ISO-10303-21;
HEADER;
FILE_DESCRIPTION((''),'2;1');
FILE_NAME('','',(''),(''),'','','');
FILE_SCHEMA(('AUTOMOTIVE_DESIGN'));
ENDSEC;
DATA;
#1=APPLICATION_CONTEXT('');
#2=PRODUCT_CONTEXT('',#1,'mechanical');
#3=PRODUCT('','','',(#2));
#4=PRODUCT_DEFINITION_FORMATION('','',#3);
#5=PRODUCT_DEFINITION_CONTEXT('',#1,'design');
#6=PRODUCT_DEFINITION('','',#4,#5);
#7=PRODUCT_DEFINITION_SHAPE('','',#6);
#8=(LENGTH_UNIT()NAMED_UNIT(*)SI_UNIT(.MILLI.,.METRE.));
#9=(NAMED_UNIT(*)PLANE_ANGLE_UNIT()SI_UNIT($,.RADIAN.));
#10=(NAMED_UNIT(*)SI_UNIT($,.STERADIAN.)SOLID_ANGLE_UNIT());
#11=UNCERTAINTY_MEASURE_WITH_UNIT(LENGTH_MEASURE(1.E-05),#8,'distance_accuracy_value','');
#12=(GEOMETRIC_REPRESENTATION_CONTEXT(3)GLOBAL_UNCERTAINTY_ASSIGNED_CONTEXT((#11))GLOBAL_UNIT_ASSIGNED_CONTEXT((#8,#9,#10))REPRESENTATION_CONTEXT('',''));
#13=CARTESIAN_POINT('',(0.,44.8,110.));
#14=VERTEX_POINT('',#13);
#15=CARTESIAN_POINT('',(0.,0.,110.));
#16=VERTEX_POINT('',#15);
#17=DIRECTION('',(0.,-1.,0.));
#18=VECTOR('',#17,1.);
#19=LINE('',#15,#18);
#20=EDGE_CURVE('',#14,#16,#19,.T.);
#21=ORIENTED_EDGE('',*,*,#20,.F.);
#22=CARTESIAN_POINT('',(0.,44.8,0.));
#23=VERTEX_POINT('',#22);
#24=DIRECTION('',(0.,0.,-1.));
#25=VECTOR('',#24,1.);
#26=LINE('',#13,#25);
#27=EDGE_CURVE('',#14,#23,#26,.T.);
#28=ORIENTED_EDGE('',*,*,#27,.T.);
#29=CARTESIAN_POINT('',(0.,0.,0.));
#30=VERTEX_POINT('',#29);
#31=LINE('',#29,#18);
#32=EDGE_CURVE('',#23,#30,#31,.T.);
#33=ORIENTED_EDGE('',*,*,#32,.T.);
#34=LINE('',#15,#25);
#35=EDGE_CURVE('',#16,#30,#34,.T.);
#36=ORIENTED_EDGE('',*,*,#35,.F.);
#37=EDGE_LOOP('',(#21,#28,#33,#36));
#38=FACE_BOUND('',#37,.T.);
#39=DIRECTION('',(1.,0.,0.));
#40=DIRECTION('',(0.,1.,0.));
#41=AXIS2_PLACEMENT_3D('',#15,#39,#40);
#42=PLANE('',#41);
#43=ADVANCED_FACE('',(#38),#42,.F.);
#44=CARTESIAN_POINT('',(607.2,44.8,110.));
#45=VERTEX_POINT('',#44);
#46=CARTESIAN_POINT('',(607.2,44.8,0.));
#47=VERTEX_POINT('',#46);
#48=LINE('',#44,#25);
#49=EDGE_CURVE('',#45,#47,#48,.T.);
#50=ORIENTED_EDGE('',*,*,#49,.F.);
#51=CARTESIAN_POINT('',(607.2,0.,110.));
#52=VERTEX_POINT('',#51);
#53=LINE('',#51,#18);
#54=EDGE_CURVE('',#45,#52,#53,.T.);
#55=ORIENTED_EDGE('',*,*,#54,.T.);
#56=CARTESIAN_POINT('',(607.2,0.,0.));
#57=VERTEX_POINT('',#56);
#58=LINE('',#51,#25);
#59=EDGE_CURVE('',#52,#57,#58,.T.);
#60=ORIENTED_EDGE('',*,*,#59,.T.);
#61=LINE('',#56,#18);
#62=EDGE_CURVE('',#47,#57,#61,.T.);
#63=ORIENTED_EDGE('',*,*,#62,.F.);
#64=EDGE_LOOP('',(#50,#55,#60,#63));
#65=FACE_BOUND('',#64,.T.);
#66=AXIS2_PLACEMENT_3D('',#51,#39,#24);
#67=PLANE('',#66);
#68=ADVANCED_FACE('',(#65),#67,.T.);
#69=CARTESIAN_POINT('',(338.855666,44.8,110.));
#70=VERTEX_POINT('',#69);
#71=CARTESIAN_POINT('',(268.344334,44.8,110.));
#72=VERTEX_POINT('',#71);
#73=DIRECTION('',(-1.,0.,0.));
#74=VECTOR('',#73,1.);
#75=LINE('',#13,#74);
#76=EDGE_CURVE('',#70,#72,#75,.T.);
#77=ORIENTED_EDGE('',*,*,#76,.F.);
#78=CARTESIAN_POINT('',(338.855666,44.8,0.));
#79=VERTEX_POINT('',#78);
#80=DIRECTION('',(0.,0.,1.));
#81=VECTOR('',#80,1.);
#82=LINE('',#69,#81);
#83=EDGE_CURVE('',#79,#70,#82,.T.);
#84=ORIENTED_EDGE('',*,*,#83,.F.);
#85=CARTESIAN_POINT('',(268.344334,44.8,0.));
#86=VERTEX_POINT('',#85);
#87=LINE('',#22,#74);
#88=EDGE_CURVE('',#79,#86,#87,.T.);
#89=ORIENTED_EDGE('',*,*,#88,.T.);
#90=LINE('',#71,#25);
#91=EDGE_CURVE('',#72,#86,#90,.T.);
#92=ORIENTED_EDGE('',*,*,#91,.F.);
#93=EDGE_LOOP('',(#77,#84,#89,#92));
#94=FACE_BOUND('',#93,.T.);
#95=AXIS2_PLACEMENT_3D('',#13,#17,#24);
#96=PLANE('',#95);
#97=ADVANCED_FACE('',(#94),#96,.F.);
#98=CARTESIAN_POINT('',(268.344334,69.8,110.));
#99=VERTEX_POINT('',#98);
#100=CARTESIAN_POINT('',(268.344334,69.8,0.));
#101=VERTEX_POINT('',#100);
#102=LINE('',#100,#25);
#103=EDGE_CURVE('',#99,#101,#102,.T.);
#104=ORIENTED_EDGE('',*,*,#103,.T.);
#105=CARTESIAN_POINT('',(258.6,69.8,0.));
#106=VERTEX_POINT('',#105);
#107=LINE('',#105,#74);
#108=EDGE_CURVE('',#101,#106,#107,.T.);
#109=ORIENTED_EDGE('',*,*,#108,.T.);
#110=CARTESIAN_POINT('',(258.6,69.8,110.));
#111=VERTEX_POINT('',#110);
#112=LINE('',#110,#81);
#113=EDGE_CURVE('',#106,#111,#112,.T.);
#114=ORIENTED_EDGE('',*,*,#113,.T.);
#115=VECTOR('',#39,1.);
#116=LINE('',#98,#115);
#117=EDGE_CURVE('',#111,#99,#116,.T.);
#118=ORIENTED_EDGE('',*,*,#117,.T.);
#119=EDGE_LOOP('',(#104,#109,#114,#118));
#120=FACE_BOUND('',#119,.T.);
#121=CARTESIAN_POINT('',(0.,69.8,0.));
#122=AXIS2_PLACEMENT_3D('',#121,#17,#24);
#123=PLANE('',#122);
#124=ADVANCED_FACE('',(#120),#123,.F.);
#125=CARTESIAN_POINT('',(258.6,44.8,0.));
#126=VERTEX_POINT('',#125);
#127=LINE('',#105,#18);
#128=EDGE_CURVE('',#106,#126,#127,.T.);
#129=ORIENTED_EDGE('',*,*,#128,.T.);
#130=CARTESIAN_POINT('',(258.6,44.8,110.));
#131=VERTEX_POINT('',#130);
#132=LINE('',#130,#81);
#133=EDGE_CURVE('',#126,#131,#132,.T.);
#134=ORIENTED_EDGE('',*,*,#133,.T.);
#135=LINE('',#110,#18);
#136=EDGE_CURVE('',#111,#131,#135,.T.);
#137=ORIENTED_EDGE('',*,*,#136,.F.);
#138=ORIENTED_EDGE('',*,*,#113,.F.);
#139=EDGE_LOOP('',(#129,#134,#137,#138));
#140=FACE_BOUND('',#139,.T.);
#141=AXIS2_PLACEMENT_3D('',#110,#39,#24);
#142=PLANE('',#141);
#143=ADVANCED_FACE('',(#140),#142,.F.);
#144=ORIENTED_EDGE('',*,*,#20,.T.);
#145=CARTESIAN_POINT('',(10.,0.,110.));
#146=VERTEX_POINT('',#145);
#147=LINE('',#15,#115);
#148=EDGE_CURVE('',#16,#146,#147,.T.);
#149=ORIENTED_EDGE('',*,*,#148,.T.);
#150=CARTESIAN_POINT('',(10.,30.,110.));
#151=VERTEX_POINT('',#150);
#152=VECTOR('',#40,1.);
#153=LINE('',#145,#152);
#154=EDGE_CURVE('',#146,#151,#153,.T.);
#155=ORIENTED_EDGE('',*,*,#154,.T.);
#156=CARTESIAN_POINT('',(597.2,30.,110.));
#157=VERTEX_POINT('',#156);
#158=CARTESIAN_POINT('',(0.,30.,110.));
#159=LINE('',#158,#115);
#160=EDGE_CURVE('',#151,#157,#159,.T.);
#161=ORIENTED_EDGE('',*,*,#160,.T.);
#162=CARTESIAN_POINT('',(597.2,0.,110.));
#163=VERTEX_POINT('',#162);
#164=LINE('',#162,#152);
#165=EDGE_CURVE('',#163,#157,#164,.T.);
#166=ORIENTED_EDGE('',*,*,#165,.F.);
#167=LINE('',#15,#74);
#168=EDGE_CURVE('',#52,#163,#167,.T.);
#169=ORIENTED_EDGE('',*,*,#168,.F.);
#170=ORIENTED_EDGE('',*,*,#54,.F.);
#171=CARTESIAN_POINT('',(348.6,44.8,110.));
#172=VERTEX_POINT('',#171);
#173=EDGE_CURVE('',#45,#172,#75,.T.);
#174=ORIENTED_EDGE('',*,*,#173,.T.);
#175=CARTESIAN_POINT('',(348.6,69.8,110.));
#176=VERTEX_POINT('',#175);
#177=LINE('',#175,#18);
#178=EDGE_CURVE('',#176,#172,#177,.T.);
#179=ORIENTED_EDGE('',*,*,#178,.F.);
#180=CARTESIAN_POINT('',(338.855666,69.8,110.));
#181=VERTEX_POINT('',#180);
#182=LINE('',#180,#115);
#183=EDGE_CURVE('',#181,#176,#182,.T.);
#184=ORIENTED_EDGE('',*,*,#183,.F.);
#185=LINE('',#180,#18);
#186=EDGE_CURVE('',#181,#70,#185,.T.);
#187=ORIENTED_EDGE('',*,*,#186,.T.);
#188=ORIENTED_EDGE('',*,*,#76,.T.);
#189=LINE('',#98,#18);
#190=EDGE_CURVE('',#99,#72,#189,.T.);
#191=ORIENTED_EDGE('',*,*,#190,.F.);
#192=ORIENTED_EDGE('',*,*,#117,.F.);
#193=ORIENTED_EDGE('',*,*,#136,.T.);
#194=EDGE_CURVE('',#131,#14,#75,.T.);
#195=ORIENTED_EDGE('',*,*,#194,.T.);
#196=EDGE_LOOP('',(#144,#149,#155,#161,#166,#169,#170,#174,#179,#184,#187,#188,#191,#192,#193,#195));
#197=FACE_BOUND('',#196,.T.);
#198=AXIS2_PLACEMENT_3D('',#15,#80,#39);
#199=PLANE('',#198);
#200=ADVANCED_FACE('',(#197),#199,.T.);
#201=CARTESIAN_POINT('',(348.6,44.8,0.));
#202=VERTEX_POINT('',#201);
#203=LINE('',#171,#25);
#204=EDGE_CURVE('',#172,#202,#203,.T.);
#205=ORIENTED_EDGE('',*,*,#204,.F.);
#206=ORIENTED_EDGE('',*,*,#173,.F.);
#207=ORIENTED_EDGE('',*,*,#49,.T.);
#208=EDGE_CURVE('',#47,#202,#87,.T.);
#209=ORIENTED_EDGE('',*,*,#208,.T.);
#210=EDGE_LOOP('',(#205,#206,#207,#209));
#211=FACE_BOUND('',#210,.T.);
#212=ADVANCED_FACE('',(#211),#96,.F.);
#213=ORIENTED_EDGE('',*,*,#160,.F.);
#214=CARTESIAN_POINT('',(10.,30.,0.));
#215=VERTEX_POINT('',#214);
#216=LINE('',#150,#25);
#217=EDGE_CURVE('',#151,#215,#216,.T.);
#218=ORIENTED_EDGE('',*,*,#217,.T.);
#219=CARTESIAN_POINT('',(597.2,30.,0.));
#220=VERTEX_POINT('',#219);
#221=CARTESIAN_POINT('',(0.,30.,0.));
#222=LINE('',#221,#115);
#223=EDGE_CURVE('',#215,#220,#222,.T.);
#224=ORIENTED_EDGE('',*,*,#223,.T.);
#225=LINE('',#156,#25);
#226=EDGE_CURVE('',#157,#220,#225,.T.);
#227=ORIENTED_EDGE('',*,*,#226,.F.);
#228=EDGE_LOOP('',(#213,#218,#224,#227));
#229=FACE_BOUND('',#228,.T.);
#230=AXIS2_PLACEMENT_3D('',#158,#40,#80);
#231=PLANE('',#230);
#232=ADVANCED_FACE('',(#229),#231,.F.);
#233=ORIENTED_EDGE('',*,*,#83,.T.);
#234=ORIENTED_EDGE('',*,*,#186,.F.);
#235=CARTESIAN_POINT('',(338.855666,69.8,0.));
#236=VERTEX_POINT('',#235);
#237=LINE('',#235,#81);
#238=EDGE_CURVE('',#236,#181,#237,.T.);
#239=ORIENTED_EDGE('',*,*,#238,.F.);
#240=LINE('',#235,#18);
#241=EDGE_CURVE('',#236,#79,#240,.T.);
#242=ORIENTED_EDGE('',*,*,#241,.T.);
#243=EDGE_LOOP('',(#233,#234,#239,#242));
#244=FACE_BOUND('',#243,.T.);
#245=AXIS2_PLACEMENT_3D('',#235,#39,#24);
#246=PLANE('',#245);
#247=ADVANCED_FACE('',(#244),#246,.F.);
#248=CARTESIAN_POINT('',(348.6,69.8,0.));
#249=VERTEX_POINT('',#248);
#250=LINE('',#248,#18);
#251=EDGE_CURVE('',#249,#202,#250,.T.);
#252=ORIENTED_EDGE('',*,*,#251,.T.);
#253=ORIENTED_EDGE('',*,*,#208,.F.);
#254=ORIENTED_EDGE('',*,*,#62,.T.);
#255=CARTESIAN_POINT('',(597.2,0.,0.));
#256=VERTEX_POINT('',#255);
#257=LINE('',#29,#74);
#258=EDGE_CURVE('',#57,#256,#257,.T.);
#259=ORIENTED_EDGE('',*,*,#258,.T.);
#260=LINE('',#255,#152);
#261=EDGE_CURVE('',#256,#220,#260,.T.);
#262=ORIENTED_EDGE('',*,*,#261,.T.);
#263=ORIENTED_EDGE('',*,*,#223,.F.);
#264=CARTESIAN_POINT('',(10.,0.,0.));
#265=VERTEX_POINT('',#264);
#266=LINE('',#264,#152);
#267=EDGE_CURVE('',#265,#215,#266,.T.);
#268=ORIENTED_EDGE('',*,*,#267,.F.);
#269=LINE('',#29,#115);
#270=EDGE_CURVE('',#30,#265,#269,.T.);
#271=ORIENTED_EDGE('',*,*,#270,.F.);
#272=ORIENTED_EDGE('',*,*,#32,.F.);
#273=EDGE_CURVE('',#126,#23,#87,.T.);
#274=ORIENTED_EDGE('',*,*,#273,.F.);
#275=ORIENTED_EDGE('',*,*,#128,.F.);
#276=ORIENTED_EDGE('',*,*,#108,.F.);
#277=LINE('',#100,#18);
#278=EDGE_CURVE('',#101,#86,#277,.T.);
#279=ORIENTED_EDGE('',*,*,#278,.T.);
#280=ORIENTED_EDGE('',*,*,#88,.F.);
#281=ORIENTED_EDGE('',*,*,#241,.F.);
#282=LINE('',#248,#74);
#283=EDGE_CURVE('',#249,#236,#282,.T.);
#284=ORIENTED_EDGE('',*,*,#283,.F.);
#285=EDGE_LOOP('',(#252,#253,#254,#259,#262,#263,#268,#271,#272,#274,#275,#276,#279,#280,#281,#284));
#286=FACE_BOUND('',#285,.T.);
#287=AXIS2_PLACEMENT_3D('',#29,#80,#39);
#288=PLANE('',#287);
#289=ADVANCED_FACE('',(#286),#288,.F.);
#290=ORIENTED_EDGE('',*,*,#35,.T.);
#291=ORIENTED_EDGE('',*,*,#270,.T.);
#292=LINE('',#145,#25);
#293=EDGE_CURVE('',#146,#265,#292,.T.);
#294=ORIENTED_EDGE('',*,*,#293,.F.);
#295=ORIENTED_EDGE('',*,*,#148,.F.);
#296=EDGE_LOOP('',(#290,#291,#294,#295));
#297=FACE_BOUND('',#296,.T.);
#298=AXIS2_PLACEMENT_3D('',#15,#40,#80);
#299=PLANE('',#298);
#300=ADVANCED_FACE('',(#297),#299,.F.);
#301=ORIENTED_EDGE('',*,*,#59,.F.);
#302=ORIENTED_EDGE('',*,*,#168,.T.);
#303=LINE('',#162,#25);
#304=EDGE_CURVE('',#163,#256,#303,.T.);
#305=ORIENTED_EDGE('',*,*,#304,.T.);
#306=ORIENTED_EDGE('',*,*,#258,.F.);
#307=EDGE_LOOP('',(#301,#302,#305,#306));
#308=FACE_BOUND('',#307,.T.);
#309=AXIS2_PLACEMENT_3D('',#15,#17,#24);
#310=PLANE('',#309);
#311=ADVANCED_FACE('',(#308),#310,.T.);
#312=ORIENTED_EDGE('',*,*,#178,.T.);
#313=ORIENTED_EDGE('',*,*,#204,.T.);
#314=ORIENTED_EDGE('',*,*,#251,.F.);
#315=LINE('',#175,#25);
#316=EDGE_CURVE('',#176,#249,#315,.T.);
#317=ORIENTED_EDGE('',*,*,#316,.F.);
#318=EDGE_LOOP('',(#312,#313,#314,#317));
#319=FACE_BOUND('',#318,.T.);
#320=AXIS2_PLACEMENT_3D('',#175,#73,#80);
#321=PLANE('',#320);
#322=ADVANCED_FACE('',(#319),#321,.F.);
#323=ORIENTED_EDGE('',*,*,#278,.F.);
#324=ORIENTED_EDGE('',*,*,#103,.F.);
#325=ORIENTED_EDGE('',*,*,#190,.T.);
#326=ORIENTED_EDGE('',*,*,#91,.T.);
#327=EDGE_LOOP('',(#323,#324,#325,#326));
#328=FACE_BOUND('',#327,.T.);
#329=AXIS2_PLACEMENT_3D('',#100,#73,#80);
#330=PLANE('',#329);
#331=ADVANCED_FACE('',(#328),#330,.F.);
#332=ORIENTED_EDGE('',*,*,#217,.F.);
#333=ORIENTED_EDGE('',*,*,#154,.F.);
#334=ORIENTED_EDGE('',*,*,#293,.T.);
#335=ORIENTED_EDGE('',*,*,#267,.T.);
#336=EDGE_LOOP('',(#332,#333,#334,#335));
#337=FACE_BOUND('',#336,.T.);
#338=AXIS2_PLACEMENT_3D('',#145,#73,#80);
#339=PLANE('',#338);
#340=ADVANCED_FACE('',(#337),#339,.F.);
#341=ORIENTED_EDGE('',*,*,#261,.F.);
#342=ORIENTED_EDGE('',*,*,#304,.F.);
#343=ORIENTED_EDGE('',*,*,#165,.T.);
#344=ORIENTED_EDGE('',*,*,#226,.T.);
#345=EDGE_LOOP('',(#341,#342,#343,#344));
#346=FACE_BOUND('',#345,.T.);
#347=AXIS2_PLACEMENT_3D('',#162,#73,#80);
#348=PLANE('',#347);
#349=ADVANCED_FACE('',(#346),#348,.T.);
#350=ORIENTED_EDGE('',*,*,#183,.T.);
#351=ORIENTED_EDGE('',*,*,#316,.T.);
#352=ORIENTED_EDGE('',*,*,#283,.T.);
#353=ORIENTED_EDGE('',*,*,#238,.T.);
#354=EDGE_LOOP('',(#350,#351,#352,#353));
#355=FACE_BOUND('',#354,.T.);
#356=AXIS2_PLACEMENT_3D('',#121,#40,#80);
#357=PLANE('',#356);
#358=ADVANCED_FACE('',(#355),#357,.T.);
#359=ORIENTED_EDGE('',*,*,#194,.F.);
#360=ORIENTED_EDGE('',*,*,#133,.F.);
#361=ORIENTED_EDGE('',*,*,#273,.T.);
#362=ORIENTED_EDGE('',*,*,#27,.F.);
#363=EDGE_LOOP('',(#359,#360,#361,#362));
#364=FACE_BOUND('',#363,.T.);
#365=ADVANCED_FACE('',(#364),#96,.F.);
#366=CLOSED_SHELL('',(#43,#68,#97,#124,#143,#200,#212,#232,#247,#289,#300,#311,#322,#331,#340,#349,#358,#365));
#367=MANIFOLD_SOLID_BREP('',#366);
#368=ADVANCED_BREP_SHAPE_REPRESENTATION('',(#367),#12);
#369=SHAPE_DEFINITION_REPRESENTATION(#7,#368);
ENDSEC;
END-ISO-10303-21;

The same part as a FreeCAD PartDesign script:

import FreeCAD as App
import Part
import Sketcher

V = App.Vector

doc = App.newDocument("Part")
body = doc.addObject("PartDesign::Body", "Body")

sketch1 = doc.addObject("Sketcher::SketchObject", "Sketch")
body.addObject(sketch1)
sketch1.AttachmentSupport = (doc.XY_Plane, [""])
sketch1.MapMode = "FlatFace"
sketch1.addGeometry(Part.LineSegment(V(0, 0, 0), V(10, 0, 0)), False)
sketch1.addGeometry(Part.LineSegment(V(10, 0, 0), V(10, 30, 0)), False)
sketch1.addGeometry(Part.LineSegment(V(10, 30, 0), V(597, 30, 0)), False)
sketch1.addGeometry(Part.LineSegment(V(597, 30, 0), V(597, 0, 0)), False)
sketch1.addGeometry(Part.LineSegment(V(597, 0, 0), V(607, 0, 0)), False)
sketch1.addGeometry(Part.LineSegment(V(607, 0, 0), V(607, 45, 0)), False)
sketch1.addGeometry(Part.LineSegment(V(607, 45, 0), V(0, 45, 0)), False)
sketch1.addGeometry(Part.LineSegment(V(0, 45, 0), V(0, 0, 0)), False)
sketch1.addConstraint(Sketcher.Constraint("Coincident", 0, 2, 1, 1))
sketch1.addConstraint(Sketcher.Constraint("Coincident", 1, 2, 2, 1))
sketch1.addConstraint(Sketcher.Constraint("Coincident", 2, 2, 3, 1))
sketch1.addConstraint(Sketcher.Constraint("Coincident", 3, 2, 4, 1))
sketch1.addConstraint(Sketcher.Constraint("Coincident", 4, 2, 5, 1))
sketch1.addConstraint(Sketcher.Constraint("Coincident", 5, 2, 6, 1))
sketch1.addConstraint(Sketcher.Constraint("Coincident", 6, 2, 7, 1))
sketch1.addConstraint(Sketcher.Constraint("Coincident", 7, 2, 0, 1))
sketch1.addConstraint(Sketcher.Constraint("Horizontal", 0))
sketch1.addConstraint(Sketcher.Constraint("Vertical", 1))
sketch1.addConstraint(Sketcher.Constraint("Horizontal", 2))
sketch1.addConstraint(Sketcher.Constraint("Vertical", 3))
sketch1.addConstraint(Sketcher.Constraint("Horizontal", 4))
sketch1.addConstraint(Sketcher.Constraint("Vertical", 5))
sketch1.addConstraint(Sketcher.Constraint("Horizontal", 6))
sketch1.addConstraint(Sketcher.Constraint("Vertical", 7))
sketch1.addConstraint(Sketcher.Constraint("Coincident", 7, 2, -1, 1))
sketch1.addConstraint(Sketcher.Constraint("PointOnObject", 3, 2, -1))
sketch1.addConstraint(Sketcher.Constraint("Equal", 0, 4))
sketch1.addConstraint(Sketcher.Constraint("DistanceX", 0, 1, 0, 2, 10.0))
sketch1.addConstraint(Sketcher.Constraint("DistanceY", 1, 1, 1, 2, 30.0))
sketch1.addConstraint(Sketcher.Constraint("DistanceX", 2, 1, 2, 2, 587.2))
sketch1.addConstraint(Sketcher.Constraint("DistanceY", 5, 1, 5, 2, 44.8))
pad1 = doc.addObject("PartDesign::Pad", "Pad")
body.addObject(pad1)
pad1.Profile = sketch1
pad1.Length = 110

sketch2 = doc.addObject("Sketcher::SketchObject", "Sketch001")
body.addObject(sketch2)
sketch2.AttachmentSupport = (doc.XZ_Plane, [""])
sketch2.MapMode = "FlatFace"
sketch2.AttachmentOffset = App.Placement(V(0, 0, -39.6), App.Rotation())
sketch2.addGeometry(Part.LineSegment(V(339, 0, 0), V(339, 110, 0)), False)
sketch2.addGeometry(Part.LineSegment(V(339, 110, 0), V(349, 110, 0)), False)
sketch2.addGeometry(Part.LineSegment(V(349, 110, 0), V(349, 0, 0)), False)
sketch2.addGeometry(Part.LineSegment(V(349, 0, 0), V(339, 0, 0)), False)
sketch2.addGeometry(Part.LineSegment(V(259, 0, 0), V(259, 110, 0)), False)
sketch2.addGeometry(Part.LineSegment(V(259, 110, 0), V(268, 110, 0)), False)
sketch2.addGeometry(Part.LineSegment(V(268, 110, 0), V(268, 0, 0)), False)
sketch2.addGeometry(Part.LineSegment(V(268, 0, 0), V(259, 0, 0)), False)
sketch2.addConstraint(Sketcher.Constraint("Coincident", 0, 2, 1, 1))
sketch2.addConstraint(Sketcher.Constraint("Coincident", 1, 2, 2, 1))
sketch2.addConstraint(Sketcher.Constraint("Coincident", 2, 2, 3, 1))
sketch2.addConstraint(Sketcher.Constraint("Coincident", 3, 2, 0, 1))
sketch2.addConstraint(Sketcher.Constraint("Coincident", 4, 2, 5, 1))
sketch2.addConstraint(Sketcher.Constraint("Coincident", 5, 2, 6, 1))
sketch2.addConstraint(Sketcher.Constraint("Coincident", 6, 2, 7, 1))
sketch2.addConstraint(Sketcher.Constraint("Coincident", 7, 2, 4, 1))
sketch2.addConstraint(Sketcher.Constraint("Vertical", 0))
sketch2.addConstraint(Sketcher.Constraint("Horizontal", 1))
sketch2.addConstraint(Sketcher.Constraint("Vertical", 2))
sketch2.addConstraint(Sketcher.Constraint("Horizontal", 3))
sketch2.addConstraint(Sketcher.Constraint("Vertical", 4))
sketch2.addConstraint(Sketcher.Constraint("Horizontal", 5))
sketch2.addConstraint(Sketcher.Constraint("Vertical", 6))
sketch2.addConstraint(Sketcher.Constraint("Horizontal", 7))
sketch2.addConstraint(Sketcher.Constraint("PointOnObject", 2, 2, -1))
sketch2.addConstraint(Sketcher.Constraint("PointOnObject", 6, 2, -1))
sketch2.addConstraint(Sketcher.Constraint("Horizontal", 1, 2, 4, 2))
sketch2.addConstraint(Sketcher.Constraint("Equal", 3, 5))
sketch2.addConstraint(Sketcher.Constraint("DistanceY", 0, 1, 0, 2, 110.0))
sketch2.addConstraint(Sketcher.Constraint("DistanceX", 4, 2, 1, 2, 90.0))
sketch2.addConstraint(Sketcher.Constraint("DistanceX", -1, 1, 1, 2, 348.6))
sketch2.addConstraint(Sketcher.Constraint("DistanceX", 1, 1, 1, 2, 9.744334))
pad2 = doc.addObject("PartDesign::Pad", "Pad001")
body.addObject(pad2)
pad2.Profile = sketch2
pad2.Length = 30.2
pad2.Reversed = True

doc.recompute()
